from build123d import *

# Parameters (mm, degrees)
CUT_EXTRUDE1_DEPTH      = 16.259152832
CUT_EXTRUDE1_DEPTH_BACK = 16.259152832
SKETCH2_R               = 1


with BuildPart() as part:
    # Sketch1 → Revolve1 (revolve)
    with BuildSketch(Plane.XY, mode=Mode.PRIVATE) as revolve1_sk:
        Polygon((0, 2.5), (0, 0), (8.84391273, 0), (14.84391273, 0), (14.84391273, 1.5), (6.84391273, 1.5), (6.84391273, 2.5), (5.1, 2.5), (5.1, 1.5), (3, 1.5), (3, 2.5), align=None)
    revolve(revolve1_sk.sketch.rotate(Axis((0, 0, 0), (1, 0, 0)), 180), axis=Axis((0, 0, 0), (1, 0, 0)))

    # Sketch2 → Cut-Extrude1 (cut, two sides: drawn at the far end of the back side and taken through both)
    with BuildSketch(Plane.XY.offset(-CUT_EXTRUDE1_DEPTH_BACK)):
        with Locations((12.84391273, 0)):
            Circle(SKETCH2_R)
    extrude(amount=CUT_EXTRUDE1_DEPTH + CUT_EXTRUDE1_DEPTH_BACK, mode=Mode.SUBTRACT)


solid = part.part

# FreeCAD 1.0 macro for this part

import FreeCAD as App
import Part
import Sketcher

doc = App.newDocument("Part")
body = doc.addObject("PartDesign::Body", "Body")

# Sketch on XY plane
sketch1 = body.newObject("Sketcher::SketchObject", "Sketch")
sketch1.AttachmentSupport = (doc.getObject("XY_Plane"), [""])
sketch1.MapMode = "FlatFace"
sketch1.addGeometry(Part.LineSegment(App.Vector(0, 2.5, 0), App.Vector(0, 0, 0)), False)
sketch1.addGeometry(Part.LineSegment(App.Vector(0, 0, 0), App.Vector(14.8, 0, 0)), False)
sketch1.addGeometry(Part.LineSegment(App.Vector(14.8, 0, 0), App.Vector(14.8, 1.5, 0)), False)
sketch1.addGeometry(Part.LineSegment(App.Vector(14.8, 1.5, 0), App.Vector(6.8, 1.5, 0)), False)
sketch1.addGeometry(Part.LineSegment(App.Vector(6.8, 1.5, 0), App.Vector(6.8, 2.5, 0)), False)
sketch1.addGeometry(Part.LineSegment(App.Vector(6.8, 2.5, 0), App.Vector(5.1, 2.5, 0)), False)
sketch1.addGeometry(Part.LineSegment(App.Vector(5.1, 2.5, 0), App.Vector(5.1, 1.5, 0)), False)
sketch1.addGeometry(Part.LineSegment(App.Vector(5.1, 1.5, 0), App.Vector(3, 1.5, 0)), False)
sketch1.addGeometry(Part.LineSegment(App.Vector(3, 1.5, 0), App.Vector(3, 2.5, 0)), False)
sketch1.addGeometry(Part.LineSegment(App.Vector(3, 2.5, 0), App.Vector(0, 2.5, 0)), False)
sketch1.addConstraint(Sketcher.Constraint("Coincident", 0, 2, 1, 1))
sketch1.addConstraint(Sketcher.Constraint("Coincident", 1, 2, 2, 1))
sketch1.addConstraint(Sketcher.Constraint("Coincident", 2, 2, 3, 1))
sketch1.addConstraint(Sketcher.Constraint("Coincident", 3, 2, 4, 1))
sketch1.addConstraint(Sketcher.Constraint("Coincident", 4, 2, 5, 1))
sketch1.addConstraint(Sketcher.Constraint("Coincident", 5, 2, 6, 1))
sketch1.addConstraint(Sketcher.Constraint("Coincident", 6, 2, 7, 1))
sketch1.addConstraint(Sketcher.Constraint("Coincident", 7, 2, 8, 1))
sketch1.addConstraint(Sketcher.Constraint("Coincident", 8, 2, 9, 1))
sketch1.addConstraint(Sketcher.Constraint("Coincident", 9, 2, 0, 1))
sketch1.addConstraint(Sketcher.Constraint("Vertical", 0))
sketch1.addConstraint(Sketcher.Constraint("Horizontal", 1))
sketch1.addConstraint(Sketcher.Constraint("Vertical", 2))
sketch1.addConstraint(Sketcher.Constraint("Horizontal", 3))
sketch1.addConstraint(Sketcher.Constraint("Vertical", 4))
sketch1.addConstraint(Sketcher.Constraint("Horizontal", 5))
sketch1.addConstraint(Sketcher.Constraint("Vertical", 6))
sketch1.addConstraint(Sketcher.Constraint("Horizontal", 7))
sketch1.addConstraint(Sketcher.Constraint("Vertical", 8))
sketch1.addConstraint(Sketcher.Constraint("Horizontal", 9))
sketch1.addConstraint(Sketcher.Constraint("Coincident", 0, 2, -1, 1))
sketch1.addConstraint(Sketcher.Constraint("Horizontal", 3, 2, 6, 2))
sketch1.addConstraint(Sketcher.Constraint("Horizontal", 5, 2, 8, 2))
sketch1.addConstraint(Sketcher.Constraint("DistanceX", 3, 2, 3, 1, 8.0))
sketch1.addConstraint(Sketcher.Constraint("DistanceX", 9, 2, 9, 1, 3.0))
sketch1.addConstraint(Sketcher.Constraint("DistanceY", 4, 1, 4, 2, 1.0))
sketch1.addConstraint(Sketcher.Constraint("DistanceX", 7, 2, 7, 1, 2.1))
sketch1.addConstraint(Sketcher.Constraint("DistanceY", 0, 2, 0, 1, 2.5))
sketch1.addConstraint(Sketcher.Constraint("DistanceX", 1, 1, 1, 2, 14.843913))
revolution = body.newObject("PartDesign::Revolution", "Revolution")
revolution.Profile = sketch1
revolution.ReferenceAxis = (sketch1, ["H_Axis"])
revolution.Angle = 360

# Sketch on XY plane
sketch2 = body.newObject("Sketcher::SketchObject", "Sketch001")
sketch2.AttachmentSupport = (doc.getObject("XY_Plane"), [""])
sketch2.MapMode = "FlatFace"
sketch2.addGeometry(Part.Circle(App.Vector(12.8, 0, 0), App.Vector(0, 0, 1), 1), False)
sketch2.addConstraint(Sketcher.Constraint("PointOnObject", 0, 3, -1))
sketch2.addConstraint(Sketcher.Constraint("Diameter", 0, 2.0))
sketch2.addConstraint(Sketcher.Constraint("DistanceX", -1, 1, 0, 3, 12.843913))
pocket1 = body.newObject("PartDesign::Pocket", "Pocket")
pocket1.Profile = sketch2
pocket1.Type = "ThroughAll"
pocket1.Midplane = True

doc.recompute()
